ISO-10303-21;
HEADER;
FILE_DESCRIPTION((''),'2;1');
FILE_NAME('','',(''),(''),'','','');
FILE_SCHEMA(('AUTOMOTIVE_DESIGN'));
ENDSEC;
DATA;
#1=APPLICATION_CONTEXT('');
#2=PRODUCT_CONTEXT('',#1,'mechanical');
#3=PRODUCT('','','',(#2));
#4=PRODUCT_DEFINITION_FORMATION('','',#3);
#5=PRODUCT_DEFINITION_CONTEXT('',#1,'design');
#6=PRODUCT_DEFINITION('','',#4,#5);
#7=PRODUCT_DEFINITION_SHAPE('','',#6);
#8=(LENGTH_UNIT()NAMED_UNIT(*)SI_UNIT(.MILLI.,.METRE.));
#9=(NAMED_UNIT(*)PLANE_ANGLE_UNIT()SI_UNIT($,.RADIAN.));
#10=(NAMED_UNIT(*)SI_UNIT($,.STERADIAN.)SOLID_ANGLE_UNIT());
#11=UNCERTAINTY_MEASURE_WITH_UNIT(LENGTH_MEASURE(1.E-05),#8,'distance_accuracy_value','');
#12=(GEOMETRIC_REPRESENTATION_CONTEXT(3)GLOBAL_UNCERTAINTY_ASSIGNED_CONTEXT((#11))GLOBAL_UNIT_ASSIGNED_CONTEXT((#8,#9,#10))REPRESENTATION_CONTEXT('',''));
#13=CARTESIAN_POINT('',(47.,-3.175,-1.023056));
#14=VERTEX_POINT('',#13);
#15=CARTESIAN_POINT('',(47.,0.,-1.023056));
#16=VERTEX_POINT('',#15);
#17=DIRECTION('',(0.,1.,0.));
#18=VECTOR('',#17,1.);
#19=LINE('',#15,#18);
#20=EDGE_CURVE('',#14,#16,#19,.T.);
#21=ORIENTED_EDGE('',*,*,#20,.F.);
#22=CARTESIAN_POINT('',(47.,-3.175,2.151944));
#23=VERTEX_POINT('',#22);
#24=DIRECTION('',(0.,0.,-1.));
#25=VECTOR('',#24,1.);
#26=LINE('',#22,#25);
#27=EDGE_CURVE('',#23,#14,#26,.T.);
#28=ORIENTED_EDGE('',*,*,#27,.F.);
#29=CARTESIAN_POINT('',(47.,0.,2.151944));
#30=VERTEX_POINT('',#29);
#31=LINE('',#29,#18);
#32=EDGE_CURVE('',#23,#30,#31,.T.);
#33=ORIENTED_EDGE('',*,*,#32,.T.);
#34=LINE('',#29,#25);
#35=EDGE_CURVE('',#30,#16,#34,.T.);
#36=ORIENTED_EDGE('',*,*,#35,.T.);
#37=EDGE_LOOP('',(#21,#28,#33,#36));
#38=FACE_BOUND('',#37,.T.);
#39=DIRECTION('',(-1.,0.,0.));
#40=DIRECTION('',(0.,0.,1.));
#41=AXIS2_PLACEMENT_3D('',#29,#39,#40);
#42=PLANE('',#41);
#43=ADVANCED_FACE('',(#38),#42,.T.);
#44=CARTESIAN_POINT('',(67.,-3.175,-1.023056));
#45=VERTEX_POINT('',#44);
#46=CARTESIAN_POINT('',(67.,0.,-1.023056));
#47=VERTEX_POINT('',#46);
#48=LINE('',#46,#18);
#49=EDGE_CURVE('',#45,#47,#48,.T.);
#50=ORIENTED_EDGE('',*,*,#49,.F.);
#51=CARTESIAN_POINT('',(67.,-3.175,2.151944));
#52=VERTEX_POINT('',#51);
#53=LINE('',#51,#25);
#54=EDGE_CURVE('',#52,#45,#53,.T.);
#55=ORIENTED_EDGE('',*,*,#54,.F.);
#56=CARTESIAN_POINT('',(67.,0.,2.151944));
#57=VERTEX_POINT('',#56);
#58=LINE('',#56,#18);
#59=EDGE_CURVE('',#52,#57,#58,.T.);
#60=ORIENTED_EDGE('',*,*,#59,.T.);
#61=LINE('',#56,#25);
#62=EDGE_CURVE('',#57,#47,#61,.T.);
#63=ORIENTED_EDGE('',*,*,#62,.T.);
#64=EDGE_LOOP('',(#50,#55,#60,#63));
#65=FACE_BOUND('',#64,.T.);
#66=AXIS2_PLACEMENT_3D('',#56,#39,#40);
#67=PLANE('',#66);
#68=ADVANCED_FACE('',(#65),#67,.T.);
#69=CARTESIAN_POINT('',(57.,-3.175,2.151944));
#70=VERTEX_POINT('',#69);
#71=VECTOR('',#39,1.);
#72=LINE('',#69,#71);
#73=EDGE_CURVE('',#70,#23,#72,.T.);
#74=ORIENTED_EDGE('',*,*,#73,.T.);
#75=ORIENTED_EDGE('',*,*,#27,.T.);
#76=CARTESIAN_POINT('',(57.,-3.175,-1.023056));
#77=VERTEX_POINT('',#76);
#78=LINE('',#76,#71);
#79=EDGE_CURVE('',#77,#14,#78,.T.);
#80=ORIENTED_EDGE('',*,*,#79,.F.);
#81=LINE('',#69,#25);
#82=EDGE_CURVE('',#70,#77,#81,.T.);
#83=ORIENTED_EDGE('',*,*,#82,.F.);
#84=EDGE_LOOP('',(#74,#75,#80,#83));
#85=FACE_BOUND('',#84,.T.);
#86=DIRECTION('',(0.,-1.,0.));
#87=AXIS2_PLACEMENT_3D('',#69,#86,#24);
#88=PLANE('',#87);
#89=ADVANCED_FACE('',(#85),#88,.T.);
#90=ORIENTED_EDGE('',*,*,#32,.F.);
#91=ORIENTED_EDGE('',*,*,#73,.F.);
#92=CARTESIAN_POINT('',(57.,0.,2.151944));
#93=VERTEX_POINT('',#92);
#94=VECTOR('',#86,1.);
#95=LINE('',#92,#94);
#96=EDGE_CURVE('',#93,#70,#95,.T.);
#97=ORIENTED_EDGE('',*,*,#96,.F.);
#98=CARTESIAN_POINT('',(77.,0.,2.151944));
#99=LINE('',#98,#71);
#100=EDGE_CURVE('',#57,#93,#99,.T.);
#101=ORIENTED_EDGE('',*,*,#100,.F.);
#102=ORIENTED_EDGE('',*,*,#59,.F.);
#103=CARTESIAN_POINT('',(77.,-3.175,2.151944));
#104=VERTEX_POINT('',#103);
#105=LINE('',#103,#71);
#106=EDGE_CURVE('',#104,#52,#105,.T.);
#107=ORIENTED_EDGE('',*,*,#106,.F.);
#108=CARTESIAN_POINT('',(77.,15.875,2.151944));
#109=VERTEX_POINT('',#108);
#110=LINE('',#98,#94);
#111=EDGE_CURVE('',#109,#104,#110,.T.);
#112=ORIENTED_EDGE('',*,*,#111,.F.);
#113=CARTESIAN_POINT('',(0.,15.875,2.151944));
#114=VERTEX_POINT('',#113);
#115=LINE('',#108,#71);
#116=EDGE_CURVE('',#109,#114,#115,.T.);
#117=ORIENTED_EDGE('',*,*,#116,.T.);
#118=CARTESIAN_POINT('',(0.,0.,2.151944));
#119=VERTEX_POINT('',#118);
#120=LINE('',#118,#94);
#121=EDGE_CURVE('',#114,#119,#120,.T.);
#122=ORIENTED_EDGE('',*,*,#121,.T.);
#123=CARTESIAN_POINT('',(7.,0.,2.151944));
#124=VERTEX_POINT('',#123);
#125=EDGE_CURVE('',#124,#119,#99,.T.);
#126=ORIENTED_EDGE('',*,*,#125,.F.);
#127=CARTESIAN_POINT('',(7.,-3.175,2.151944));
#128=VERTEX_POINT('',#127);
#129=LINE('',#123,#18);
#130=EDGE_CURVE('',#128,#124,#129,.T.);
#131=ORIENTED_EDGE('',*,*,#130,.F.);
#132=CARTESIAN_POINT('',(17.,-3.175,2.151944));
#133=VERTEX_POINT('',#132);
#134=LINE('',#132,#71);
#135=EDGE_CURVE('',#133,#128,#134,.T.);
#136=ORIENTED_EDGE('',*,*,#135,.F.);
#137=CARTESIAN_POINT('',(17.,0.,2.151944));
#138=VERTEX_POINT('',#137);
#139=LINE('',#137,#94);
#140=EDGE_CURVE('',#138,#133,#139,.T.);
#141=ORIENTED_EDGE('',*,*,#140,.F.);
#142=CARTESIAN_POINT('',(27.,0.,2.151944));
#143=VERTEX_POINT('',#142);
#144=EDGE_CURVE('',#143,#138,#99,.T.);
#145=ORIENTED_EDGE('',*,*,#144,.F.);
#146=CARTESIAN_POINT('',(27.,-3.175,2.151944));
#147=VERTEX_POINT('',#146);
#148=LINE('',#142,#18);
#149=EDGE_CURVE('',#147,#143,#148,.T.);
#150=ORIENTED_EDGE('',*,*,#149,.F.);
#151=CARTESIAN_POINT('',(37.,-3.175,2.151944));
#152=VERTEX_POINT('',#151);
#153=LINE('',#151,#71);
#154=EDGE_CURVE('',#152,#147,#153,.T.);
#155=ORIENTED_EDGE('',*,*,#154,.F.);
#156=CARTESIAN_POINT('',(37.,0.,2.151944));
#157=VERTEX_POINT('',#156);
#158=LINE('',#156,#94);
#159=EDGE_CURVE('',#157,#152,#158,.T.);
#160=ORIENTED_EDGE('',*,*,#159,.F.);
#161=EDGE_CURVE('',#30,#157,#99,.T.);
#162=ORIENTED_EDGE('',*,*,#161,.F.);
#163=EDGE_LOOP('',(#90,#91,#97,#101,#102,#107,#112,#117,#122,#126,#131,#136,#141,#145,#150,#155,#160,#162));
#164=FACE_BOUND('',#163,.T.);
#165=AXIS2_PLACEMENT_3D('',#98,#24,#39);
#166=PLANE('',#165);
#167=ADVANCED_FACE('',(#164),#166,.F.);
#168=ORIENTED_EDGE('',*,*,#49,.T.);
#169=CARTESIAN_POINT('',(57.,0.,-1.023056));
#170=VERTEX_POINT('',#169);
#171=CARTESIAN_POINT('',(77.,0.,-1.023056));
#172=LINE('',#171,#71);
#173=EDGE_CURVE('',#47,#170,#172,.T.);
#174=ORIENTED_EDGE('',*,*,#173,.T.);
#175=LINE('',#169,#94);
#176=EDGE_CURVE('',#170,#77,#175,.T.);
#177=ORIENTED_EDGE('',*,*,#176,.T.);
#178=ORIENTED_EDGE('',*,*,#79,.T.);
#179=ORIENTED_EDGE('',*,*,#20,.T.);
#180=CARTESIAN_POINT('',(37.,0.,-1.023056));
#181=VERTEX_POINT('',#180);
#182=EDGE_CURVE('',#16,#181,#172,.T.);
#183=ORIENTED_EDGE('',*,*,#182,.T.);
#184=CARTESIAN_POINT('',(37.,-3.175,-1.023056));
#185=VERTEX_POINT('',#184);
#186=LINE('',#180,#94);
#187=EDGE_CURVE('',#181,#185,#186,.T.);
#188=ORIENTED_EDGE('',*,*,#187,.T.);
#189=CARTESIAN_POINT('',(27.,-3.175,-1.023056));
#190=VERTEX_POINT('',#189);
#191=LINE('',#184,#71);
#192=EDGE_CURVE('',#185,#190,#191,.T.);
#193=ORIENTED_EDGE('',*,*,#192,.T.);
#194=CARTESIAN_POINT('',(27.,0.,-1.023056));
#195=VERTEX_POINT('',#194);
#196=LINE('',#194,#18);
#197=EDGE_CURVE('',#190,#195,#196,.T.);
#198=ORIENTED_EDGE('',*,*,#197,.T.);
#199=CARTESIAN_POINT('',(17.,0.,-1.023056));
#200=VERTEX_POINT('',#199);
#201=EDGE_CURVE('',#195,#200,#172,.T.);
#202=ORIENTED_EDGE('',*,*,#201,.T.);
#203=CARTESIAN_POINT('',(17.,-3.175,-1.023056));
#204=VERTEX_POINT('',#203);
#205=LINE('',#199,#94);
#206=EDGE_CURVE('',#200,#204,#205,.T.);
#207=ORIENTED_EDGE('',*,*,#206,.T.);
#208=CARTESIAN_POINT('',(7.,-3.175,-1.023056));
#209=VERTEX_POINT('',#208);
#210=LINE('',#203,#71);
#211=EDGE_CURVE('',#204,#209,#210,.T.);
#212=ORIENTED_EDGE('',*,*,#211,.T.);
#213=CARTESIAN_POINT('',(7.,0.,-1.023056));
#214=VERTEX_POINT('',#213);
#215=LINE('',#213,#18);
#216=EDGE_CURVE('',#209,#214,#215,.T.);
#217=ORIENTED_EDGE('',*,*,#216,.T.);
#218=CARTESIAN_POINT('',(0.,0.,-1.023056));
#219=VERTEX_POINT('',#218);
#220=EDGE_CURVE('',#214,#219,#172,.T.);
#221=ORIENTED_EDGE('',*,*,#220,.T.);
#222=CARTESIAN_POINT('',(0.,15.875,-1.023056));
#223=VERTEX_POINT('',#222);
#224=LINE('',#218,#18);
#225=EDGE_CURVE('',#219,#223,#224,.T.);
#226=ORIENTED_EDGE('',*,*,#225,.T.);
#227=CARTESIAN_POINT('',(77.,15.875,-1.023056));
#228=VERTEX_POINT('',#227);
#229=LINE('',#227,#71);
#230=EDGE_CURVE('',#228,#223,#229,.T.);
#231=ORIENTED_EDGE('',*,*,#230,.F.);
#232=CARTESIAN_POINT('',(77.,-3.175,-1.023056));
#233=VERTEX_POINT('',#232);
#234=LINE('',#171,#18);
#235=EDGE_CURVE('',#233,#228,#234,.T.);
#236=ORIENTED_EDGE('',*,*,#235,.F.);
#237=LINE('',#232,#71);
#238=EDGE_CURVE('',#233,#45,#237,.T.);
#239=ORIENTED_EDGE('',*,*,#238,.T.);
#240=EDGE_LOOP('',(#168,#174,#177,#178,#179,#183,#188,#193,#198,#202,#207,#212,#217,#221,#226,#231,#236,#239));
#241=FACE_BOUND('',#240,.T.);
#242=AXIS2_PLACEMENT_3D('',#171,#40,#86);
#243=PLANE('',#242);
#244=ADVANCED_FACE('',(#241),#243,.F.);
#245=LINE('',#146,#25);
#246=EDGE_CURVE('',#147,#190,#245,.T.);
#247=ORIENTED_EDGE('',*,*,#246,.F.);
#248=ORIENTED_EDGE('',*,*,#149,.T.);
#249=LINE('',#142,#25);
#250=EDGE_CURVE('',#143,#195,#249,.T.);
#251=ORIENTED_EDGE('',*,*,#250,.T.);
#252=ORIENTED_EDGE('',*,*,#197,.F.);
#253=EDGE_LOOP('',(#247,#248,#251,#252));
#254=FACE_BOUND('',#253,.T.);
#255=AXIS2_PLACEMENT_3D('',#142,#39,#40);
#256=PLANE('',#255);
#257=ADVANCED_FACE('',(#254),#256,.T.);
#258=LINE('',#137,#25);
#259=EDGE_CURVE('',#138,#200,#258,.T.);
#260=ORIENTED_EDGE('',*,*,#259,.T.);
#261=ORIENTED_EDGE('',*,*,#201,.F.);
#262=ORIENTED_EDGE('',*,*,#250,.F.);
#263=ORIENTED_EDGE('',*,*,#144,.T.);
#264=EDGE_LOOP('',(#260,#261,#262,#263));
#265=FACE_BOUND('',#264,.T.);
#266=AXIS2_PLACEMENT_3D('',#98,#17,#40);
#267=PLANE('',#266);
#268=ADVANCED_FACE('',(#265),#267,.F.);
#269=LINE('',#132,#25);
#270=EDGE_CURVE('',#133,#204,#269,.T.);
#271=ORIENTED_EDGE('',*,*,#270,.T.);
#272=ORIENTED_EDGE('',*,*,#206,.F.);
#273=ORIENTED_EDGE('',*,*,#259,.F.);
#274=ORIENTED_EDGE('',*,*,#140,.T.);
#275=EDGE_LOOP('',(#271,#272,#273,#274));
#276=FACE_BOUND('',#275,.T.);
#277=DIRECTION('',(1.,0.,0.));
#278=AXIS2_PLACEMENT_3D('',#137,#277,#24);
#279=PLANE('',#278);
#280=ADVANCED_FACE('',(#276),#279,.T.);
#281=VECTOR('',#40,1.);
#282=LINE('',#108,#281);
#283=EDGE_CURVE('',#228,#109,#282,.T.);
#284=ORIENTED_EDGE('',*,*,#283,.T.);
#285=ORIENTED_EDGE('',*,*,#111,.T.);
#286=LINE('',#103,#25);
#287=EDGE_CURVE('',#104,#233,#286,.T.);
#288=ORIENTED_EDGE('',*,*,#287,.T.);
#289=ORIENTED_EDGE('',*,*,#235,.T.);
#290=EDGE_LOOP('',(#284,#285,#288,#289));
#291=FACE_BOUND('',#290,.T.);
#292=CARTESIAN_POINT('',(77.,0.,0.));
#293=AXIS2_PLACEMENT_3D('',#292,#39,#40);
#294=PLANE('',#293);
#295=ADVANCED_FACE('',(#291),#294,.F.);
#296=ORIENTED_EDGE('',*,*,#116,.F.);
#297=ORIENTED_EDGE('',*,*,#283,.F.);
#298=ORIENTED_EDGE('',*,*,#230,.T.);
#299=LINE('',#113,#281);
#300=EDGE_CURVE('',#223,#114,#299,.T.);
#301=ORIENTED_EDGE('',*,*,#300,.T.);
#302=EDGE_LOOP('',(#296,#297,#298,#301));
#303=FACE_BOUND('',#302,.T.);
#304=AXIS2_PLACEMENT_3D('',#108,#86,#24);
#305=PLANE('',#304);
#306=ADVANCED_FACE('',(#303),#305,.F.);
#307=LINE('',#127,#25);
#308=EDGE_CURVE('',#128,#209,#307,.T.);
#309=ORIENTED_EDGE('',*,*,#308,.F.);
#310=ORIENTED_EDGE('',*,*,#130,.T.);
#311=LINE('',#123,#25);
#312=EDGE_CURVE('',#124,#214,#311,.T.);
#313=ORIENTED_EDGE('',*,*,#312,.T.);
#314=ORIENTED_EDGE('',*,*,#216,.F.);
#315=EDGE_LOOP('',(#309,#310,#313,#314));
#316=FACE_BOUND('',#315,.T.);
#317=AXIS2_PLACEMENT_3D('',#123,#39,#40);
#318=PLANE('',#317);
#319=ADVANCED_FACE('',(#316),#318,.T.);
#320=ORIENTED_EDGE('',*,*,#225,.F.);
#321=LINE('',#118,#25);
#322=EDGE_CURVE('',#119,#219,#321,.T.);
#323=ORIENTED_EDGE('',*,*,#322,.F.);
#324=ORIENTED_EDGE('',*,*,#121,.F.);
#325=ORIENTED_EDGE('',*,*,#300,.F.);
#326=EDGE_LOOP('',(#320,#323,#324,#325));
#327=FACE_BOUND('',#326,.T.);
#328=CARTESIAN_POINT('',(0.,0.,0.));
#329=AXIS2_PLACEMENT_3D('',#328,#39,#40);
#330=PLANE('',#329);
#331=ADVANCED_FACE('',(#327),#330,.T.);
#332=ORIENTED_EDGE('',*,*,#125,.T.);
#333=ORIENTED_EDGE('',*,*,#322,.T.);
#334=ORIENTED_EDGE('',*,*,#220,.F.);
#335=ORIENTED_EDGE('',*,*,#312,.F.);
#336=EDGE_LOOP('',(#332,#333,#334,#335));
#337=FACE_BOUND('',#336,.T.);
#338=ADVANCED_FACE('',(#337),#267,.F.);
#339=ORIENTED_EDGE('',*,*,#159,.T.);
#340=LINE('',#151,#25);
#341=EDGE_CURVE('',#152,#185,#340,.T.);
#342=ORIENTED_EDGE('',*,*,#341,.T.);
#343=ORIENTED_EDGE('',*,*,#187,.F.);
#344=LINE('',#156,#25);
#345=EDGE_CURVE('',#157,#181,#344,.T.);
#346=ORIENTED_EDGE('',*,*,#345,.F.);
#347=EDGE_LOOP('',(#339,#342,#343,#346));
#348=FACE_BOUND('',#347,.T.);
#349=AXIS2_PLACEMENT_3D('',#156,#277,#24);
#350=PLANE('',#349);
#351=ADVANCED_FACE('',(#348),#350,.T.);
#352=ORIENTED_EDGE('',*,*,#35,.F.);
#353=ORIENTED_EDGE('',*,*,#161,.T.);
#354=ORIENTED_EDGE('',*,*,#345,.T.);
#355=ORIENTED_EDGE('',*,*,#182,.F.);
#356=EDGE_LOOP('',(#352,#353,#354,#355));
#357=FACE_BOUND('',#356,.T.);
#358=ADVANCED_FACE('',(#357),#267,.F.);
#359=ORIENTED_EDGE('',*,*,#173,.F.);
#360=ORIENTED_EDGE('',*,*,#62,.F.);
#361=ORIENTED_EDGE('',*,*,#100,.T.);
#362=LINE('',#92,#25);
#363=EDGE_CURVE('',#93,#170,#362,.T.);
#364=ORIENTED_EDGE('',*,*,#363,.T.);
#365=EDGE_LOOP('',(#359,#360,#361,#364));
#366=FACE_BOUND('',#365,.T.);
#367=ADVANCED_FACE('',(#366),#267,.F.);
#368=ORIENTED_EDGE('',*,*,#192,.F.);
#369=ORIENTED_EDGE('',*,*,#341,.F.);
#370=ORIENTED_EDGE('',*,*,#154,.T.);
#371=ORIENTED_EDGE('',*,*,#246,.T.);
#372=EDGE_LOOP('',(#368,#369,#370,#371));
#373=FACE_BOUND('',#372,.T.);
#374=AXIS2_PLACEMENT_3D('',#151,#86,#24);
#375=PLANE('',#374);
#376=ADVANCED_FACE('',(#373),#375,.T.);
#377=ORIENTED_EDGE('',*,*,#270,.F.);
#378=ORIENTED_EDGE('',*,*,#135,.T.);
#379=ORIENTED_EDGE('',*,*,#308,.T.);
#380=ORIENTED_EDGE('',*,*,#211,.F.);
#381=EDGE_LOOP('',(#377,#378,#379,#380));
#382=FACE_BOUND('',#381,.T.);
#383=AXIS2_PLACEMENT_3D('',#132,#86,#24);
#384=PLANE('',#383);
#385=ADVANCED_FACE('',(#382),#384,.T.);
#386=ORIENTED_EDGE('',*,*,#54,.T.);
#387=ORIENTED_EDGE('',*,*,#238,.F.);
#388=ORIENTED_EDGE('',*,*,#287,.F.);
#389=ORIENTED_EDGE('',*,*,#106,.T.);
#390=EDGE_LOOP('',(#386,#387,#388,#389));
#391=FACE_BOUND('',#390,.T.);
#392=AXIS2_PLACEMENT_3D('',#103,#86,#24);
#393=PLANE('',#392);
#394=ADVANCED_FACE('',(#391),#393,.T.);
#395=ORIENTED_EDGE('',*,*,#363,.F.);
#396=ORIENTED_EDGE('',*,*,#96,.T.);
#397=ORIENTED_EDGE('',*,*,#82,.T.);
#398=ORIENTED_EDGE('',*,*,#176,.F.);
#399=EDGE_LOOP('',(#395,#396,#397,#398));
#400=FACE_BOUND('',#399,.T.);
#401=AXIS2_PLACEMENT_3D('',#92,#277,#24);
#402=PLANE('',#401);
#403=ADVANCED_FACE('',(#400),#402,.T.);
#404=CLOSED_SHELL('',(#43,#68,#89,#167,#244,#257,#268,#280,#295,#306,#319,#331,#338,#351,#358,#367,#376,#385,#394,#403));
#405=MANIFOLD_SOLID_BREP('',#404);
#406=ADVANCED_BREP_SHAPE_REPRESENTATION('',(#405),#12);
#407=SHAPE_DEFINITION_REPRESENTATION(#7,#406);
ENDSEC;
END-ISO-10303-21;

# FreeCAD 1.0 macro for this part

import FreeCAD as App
import Part
import Sketcher
from FreeCAD import Vector
Q = App.Units.Quantity

doc = App.newDocument("Part")
params = doc.addObject("Spreadsheet::Sheet", "Params")
for row, (alias, value) in enumerate([
    ("pad1_length", "77 mm"),
    ("sketch2_width", "10 mm"),
    ("pad2_length", "3.175 mm"),
], start=1):
    params.set(f"A{row}", alias)
    params.set(f"B{row}", "=" + value)
    params.setAlias(f"B{row}", alias)

body = doc.addObject("PartDesign::Body", "Body")

# Sketch on YZ plane
sketch1 = body.newObject("Sketcher::SketchObject", "Sketch")
sketch1.AttachmentSupport = (doc.getObject("YZ_Plane"), [""])
sketch1.MapMode = "FlatFace"
sketch1.addGeometry([
    Part.LineSegment(Vector(15.875, 2.151944, 0), Vector(0, 2.151944, 0)),
    Part.LineSegment(Vector(0, 2.151944, 0), Vector(0, -1.023056, 0)),
    Part.LineSegment(Vector(0, -1.023056, 0), Vector(15.875, -1.023056, 0)),
    Part.LineSegment(Vector(15.875, -1.023056, 0), Vector(15.875, 2.151944, 0)),
], False)
sketch1.addConstraint([
    Sketcher.Constraint("Coincident", 0, 2, 1, 1),
    Sketcher.Constraint("Coincident", 1, 2, 2, 1),
    Sketcher.Constraint("Coincident", 2, 2, 3, 1),
    Sketcher.Constraint("Coincident", 3, 2, 0, 1),
    Sketcher.Constraint("Horizontal", 0),
    Sketcher.Constraint("Vertical", 1),
    Sketcher.Constraint("Horizontal", 2),
    Sketcher.Constraint("Vertical", 3),
    Sketcher.Constraint("PointOnObject", 0, 2, -2),
    Sketcher.Constraint("DistanceX", 0, 2, 0, 1, Q("15.875 mm")),
    Sketcher.Constraint("DistanceY", 1, 2, 1, 1, Q("3.175 mm")),
    Sketcher.Constraint("DistanceY", -1, 1, 0, 2, Q("2.151944 mm")),
])
pad1 = body.newObject("PartDesign::Pad", "Pad")
pad1.Profile = sketch1
pad1.setExpression("Length", "Params.pad1_length")

# Sketch on XY plane
sketch2 = body.newObject("Sketcher::SketchObject", "Sketch001")
sketch2.AttachmentSupport = (doc.getObject("XY_Plane"), [""])
sketch2.MapMode = "FlatFace"
sketch2.AttachmentOffset = App.Placement(Vector(0, 0, -1.023056), App.Rotation())
sketch2.addGeometry([
    Part.LineSegment(Vector(57, 0, 0), Vector(57, -3.175, 0)),  # 0
    Part.LineSegment(Vector(57, -3.175, 0), Vector(47, -3.175, 0)),  # 1
    Part.LineSegment(Vector(47, -3.175, 0), Vector(47, 0, 0)),  # 2
    Part.LineSegment(Vector(47, 0, 0), Vector(57, 0, 0)),  # 3
    Part.LineSegment(Vector(77, 0, 0), Vector(77, -3.175, 0)),  # 4
    Part.LineSegment(Vector(77, -3.175, 0), Vector(67, -3.175, 0)),  # 5
    Part.LineSegment(Vector(67, -3.175, 0), Vector(67, 0, 0)),  # 6
    Part.LineSegment(Vector(67, 0, 0), Vector(77, 0, 0)),  # 7
    Part.LineSegment(Vector(37, 0, 0), Vector(37, -3.175, 0)),  # 8
    Part.LineSegment(Vector(37, -3.175, 0), Vector(27, -3.175, 0)),  # 9
    Part.LineSegment(Vector(27, -3.175, 0), Vector(27, 0, 0)),  # 10
    Part.LineSegment(Vector(27, 0, 0), Vector(37, 0, 0)),  # 11
    Part.LineSegment(Vector(17, 0, 0), Vector(17, -3.175, 0)),  # 12
    Part.LineSegment(Vector(17, -3.175, 0), Vector(7, -3.175, 0)),  # 13
    Part.LineSegment(Vector(7, -3.175, 0), Vector(7, 0, 0)),  # 14
    Part.LineSegment(Vector(7, 0, 0), Vector(17, 0, 0)),  # 15
], False)
sketch2.addConstraint([
    Sketcher.Constraint("Coincident", 0, 2, 1, 1),
    Sketcher.Constraint("Coincident", 1, 2, 2, 1),
    Sketcher.Constraint("Coincident", 2, 2, 3, 1),
    Sketcher.Constraint("Coincident", 3, 2, 0, 1),
    Sketcher.Constraint("Coincident", 4, 2, 5, 1),
    Sketcher.Constraint("Coincident", 5, 2, 6, 1),
    Sketcher.Constraint("Coincident", 6, 2, 7, 1),
    Sketcher.Constraint("Coincident", 7, 2, 4, 1),
    Sketcher.Constraint("Coincident", 8, 2, 9, 1),
    Sketcher.Constraint("Coincident", 9, 2, 10, 1),
    Sketcher.Constraint("Coincident", 10, 2, 11, 1),
    Sketcher.Constraint("Coincident", 11, 2, 8, 1),
    Sketcher.Constraint("Coincident", 12, 2, 13, 1),
    Sketcher.Constraint("Coincident", 13, 2, 14, 1),
    Sketcher.Constraint("Coincident", 14, 2, 15, 1),
    Sketcher.Constraint("Coincident", 15, 2, 12, 1),
    Sketcher.Constraint("Vertical", 0),
    Sketcher.Constraint("Horizontal", 1),
    Sketcher.Constraint("Vertical", 2),
    Sketcher.Constraint("Horizontal", 3),
    Sketcher.Constraint("Vertical", 4),
    Sketcher.Constraint("Horizontal", 5),
    Sketcher.Constraint("Vertical", 6),
    Sketcher.Constraint("Horizontal", 7),
    Sketcher.Constraint("Vertical", 8),
    Sketcher.Constraint("Horizontal", 9),
    Sketcher.Constraint("Vertical", 10),
    Sketcher.Constraint("Horizontal", 11),
    Sketcher.Constraint("Vertical", 12),
    Sketcher.Constraint("Horizontal", 13),
    Sketcher.Constraint("Vertical", 14),
    Sketcher.Constraint("Horizontal", 15),
    Sketcher.Constraint("PointOnObject", 2, 2, -1),
    Sketcher.Constraint("PointOnObject", 6, 2, -1),
    Sketcher.Constraint("PointOnObject", 10, 2, -1),
    Sketcher.Constraint("PointOnObject", 14, 2, -1),
    Sketcher.Constraint("Horizontal", 1, 2, 4, 2),
    Sketcher.Constraint("Horizontal", 5, 2, 8, 2),
    Sketcher.Constraint("Horizontal", 9, 2, 12, 2),
    Sketcher.Constraint("Equal", 3, 5),
    Sketcher.Constraint("Equal", 7, 9),
    Sketcher.Constraint("Equal", 11, 13),
    Sketcher.Constraint("DistanceX", 1, 2, 1, 1, Q("10 mm")),
    Sketcher.Constraint("DistanceX", -1, 1, 0, 2, Q("57 mm")),
    Sketcher.Constraint("DistanceX", -1, 1, 4, 2, Q("77 mm")),
    Sketcher.Constraint("DistanceX", -1, 1, 8, 2, Q("37 mm")),
    Sketcher.Constraint("DistanceX", -1, 1, 12, 2, Q("17 mm")),
    Sketcher.Constraint("DistanceY", 0, 2, 0, 1, Q("3.175 mm")),
])
sketch2.setExpression("Constraints[42]", "Params.sketch2_width")
pad2 = body.newObject("PartDesign::Pad", "Pad001")
pad2.Profile = sketch2
pad2.setExpression("Length", "Params.pad2_length")

doc.recompute()
